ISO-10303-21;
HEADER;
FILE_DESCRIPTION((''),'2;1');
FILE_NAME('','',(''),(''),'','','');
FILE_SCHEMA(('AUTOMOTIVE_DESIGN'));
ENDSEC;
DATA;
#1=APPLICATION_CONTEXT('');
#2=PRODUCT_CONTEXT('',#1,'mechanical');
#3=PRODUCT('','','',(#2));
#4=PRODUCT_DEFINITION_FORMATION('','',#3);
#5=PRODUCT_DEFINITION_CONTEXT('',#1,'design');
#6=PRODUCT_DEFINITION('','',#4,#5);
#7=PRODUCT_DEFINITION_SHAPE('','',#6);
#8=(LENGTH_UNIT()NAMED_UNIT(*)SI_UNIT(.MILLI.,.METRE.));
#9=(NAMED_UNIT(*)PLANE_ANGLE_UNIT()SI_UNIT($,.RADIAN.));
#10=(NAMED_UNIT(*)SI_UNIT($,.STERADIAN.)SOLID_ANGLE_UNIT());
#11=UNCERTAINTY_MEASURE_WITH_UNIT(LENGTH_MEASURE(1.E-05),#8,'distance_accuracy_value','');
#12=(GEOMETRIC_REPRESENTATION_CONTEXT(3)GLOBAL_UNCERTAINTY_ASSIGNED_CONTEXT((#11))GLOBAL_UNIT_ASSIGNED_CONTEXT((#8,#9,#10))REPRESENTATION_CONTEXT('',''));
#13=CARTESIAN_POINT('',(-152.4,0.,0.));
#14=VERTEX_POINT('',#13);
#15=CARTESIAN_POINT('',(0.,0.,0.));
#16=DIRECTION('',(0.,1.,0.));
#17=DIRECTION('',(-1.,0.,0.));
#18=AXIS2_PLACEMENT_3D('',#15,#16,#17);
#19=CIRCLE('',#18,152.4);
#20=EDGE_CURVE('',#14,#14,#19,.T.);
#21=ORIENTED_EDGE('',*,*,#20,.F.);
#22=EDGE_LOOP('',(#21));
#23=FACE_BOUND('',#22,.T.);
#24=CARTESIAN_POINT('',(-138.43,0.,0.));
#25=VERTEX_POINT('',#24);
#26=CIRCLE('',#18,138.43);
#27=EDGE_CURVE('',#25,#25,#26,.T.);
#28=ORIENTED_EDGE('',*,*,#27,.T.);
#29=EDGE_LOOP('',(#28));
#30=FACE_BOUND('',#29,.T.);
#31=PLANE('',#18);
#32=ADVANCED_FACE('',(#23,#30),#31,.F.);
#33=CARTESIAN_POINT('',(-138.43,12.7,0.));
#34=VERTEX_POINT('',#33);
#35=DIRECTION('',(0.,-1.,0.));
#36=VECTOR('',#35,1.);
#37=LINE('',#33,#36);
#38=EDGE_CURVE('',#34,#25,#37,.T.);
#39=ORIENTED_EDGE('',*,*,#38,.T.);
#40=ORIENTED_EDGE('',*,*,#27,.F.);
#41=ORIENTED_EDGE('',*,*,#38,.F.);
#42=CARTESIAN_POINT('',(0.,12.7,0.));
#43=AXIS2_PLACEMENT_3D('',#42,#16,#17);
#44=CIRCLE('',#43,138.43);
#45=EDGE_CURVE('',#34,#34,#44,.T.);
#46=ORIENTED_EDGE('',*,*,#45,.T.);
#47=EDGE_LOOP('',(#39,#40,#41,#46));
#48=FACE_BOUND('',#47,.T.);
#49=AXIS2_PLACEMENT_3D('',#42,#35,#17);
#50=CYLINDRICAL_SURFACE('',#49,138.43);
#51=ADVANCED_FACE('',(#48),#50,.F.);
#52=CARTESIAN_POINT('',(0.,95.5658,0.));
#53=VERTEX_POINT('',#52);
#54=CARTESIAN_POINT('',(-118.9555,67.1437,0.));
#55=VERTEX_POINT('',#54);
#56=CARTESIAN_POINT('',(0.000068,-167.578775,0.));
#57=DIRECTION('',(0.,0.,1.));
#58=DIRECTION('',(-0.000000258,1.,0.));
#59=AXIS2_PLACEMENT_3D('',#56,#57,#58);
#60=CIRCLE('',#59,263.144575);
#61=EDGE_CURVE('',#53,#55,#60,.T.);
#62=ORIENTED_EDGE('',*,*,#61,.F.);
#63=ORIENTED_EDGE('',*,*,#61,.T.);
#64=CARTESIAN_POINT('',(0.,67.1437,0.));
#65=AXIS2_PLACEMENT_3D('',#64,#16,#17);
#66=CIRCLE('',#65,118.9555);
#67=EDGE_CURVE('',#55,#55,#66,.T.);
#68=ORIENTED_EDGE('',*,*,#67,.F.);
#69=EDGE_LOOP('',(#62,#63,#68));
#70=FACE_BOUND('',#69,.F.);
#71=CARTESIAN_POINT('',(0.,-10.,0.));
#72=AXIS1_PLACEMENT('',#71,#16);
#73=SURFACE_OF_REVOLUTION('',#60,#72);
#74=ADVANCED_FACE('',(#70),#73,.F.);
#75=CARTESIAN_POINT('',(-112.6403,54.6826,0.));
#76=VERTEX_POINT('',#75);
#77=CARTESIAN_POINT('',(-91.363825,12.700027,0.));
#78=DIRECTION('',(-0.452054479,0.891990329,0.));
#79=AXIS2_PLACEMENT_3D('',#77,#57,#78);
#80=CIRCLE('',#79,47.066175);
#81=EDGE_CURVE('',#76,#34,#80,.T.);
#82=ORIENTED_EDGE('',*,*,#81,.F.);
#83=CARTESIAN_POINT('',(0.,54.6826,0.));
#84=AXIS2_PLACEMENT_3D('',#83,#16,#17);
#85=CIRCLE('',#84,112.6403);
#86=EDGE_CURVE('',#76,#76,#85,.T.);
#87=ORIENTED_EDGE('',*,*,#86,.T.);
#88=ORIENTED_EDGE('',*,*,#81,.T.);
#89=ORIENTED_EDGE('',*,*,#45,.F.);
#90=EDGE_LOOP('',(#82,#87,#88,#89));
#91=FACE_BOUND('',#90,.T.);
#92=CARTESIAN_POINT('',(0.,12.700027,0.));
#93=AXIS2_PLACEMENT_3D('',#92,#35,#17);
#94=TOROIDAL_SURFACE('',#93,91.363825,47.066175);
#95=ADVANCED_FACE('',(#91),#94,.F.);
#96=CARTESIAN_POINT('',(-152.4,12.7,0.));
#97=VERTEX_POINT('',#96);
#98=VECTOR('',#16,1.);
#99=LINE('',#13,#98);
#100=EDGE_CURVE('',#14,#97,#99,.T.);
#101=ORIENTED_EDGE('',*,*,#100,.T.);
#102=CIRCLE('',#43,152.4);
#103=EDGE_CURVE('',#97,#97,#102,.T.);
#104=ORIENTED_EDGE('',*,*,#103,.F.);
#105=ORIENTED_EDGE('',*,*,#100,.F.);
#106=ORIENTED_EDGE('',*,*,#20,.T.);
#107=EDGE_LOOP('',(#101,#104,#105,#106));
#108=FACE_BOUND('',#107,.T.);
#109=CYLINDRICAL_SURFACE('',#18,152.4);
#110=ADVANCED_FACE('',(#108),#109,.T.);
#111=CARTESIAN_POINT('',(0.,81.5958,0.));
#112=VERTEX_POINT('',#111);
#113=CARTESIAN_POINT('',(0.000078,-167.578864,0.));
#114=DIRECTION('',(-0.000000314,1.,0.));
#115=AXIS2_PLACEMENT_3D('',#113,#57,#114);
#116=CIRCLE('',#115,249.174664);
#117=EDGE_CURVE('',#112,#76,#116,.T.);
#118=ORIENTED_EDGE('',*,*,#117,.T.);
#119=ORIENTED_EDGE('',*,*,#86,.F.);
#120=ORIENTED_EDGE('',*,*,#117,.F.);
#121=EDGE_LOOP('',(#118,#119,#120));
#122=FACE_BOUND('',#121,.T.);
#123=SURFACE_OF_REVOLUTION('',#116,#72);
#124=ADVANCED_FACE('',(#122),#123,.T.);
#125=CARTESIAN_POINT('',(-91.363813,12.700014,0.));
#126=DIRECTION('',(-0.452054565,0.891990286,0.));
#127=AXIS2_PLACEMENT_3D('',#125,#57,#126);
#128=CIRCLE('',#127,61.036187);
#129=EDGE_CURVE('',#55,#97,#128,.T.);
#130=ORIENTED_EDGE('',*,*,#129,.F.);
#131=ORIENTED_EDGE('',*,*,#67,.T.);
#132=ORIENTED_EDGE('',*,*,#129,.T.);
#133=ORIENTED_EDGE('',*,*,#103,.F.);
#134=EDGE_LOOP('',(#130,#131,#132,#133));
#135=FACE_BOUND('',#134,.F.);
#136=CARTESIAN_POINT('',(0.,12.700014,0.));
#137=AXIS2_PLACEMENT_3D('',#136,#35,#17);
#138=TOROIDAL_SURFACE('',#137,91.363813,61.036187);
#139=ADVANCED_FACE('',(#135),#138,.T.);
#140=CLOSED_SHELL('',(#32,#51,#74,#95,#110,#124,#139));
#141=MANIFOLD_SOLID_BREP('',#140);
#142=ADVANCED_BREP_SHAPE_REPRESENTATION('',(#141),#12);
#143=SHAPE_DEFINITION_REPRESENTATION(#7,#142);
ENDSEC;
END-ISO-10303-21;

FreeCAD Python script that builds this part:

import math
import FreeCAD as App
import Part
import Sketcher
from FreeCAD import Vector
Q = App.Units.Quantity

doc = App.newDocument("Part")
body = doc.addObject("PartDesign::Body", "Body")

sketch1 = doc.addObject("Sketcher::SketchObject", "Sketch")
body.addObject(sketch1)
sketch1.AttachmentSupport = (doc.XY_Plane, [""])
sketch1.MapMode = "FlatFace"
sketch1.addGeometry(Part.ArcOfCircle(Part.Circle(Vector(0, -168, 0), Vector(0, 0, 1), 249), math.radians(90), math.radians(117)), False)
sketch1.addGeometry(Part.LineSegment(Vector(0, 82, 0), Vector(0, 96, 0)), False)
sketch1.addGeometry(Part.ArcOfCircle(Part.Circle(Vector(0, -168, 0), Vector(0, 0, 1), 263), math.radians(90), math.radians(117)), False)
sketch1.addGeometry(Part.ArcOfCircle(Part.Circle(Vector(-91, 13, 0), Vector(0, 0, 1), 61), math.radians(117), math.radians(180)), False)
sketch1.addGeometry(Part.LineSegment(Vector(-152, 13, 0), Vector(-152, 0, 0)), False)
sketch1.addGeometry(Part.LineSegment(Vector(-152, 0, 0), Vector(-138, 0, 0)), False)
sketch1.addGeometry(Part.LineSegment(Vector(-138, 0, 0), Vector(-138, 13, 0)), False)
sketch1.addGeometry(Part.ArcOfCircle(Part.Circle(Vector(-91, 13, 0), Vector(0, 0, 1), 47), math.radians(117), math.radians(180)), False)
sketch1.addConstraint(Sketcher.Constraint("Coincident", 0, 1, 1, 1))
sketch1.addConstraint(Sketcher.Constraint("Coincident", 1, 2, 2, 1))
sketch1.addConstraint(Sketcher.Constraint("Tangent", 2, 2, 3, 1))
sketch1.addConstraint(Sketcher.Constraint("Tangent", 3, 2, 4, 1))
sketch1.addConstraint(Sketcher.Constraint("Coincident", 4, 2, 5, 1))
sketch1.addConstraint(Sketcher.Constraint("Coincident", 5, 2, 6, 1))
sketch1.addConstraint(Sketcher.Constraint("Tangent", 6, 2, 7, 2))
sketch1.addConstraint(Sketcher.Constraint("Tangent", 7, 1, 0, 2))
sketch1.addConstraint(Sketcher.Constraint("Vertical", 1))
sketch1.addConstraint(Sketcher.Constraint("Vertical", 4))
sketch1.addConstraint(Sketcher.Constraint("Horizontal", 5))
sketch1.addConstraint(Sketcher.Constraint("Vertical", 6))
sketch1.addConstraint(Sketcher.Constraint("Coincident", 2, 3, 0, 3))
sketch1.addConstraint(Sketcher.Constraint("Coincident", 7, 3, 3, 3))
sketch1.addConstraint(Sketcher.Constraint("PointOnObject", 0, 3, -2))
sketch1.addConstraint(Sketcher.Constraint("PointOnObject", 0, 1, -2))
sketch1.addConstraint(Sketcher.Constraint("PointOnObject", 4, 2, -1))
sketch1.addConstraint(Sketcher.Constraint("Radius", 0, Q("9.81 in")))
sketch1.addConstraint(Sketcher.Constraint("DistanceY", 4, 2, 4, 1, Q("0.5 in")))
sketch1.addConstraint(Sketcher.Constraint("Radius", 3, Q("2.403 in")))
sketch1.addConstraint(Sketcher.Constraint("Radius", 7, Q("1.853 in")))
sketch1.addConstraint(Sketcher.Constraint("DistanceX", 5, 2, -1, 1, Q("5.45 in")))
revolution = doc.addObject("PartDesign::Revolution", "Revolution")
body.addObject(revolution)
revolution.Profile = sketch1
revolution.ReferenceAxis = (sketch1, ["V_Axis"])
revolution.Angle = 360

doc.recompute()
